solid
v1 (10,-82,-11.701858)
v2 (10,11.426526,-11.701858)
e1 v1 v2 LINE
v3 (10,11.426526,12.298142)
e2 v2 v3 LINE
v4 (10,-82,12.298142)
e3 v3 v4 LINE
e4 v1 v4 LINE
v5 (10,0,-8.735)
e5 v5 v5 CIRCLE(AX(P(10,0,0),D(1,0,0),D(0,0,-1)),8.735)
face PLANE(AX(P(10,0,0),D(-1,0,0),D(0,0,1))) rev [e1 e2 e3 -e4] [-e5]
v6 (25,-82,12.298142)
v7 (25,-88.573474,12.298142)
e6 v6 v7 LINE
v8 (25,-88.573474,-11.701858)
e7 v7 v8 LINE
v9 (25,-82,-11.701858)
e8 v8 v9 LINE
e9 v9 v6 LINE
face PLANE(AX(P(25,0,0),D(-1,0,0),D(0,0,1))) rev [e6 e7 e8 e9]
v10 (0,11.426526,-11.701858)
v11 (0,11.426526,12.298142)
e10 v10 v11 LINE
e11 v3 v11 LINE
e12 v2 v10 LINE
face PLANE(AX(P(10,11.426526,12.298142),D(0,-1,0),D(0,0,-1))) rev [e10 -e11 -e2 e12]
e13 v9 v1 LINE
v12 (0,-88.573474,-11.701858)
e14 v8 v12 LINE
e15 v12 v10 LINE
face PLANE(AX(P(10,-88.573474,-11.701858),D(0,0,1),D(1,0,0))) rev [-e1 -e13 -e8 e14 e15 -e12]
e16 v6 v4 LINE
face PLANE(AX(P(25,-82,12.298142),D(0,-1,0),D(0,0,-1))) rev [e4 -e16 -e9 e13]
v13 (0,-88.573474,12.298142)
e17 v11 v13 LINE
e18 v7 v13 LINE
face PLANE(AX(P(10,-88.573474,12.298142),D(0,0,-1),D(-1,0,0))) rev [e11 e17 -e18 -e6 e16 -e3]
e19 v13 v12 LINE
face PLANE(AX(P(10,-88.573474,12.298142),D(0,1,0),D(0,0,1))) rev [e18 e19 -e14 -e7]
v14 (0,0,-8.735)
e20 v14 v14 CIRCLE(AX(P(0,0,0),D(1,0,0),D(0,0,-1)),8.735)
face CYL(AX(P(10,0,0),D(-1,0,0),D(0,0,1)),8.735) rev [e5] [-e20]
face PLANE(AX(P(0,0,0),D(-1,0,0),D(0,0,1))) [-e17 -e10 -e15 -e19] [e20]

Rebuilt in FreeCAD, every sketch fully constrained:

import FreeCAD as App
import Part
import Sketcher
from FreeCAD import Vector


def add_polygon(sketch, points):
    """Adds a closed chain of lines whose ends are joined by coincident constraints."""
    first, n = sketch.GeometryCount, len(points)
    for a, b in zip(points, points[1:] + points[:1]):
        sketch.addGeometry(Part.LineSegment(App.Vector(*a, 0), App.Vector(*b, 0)), False)
    for i in range(n):
        sketch.addConstraint(Sketcher.Constraint("Coincident", first + i, 2, first + (i + 1) % n, 1))

doc = App.newDocument("Part")
body = doc.addObject("PartDesign::Body", "Body")

sketch1 = body.newObject("Sketcher::SketchObject", "Sketch")
sketch1.AttachmentSupport = (doc.getObject("YZ_Plane"), [""])
sketch1.MapMode = "FlatFace"
add_polygon(sketch1, [(11, 12), (-89, 12), (-89, -12), (11, -12)])
sketch1.addGeometry(Part.Circle(Vector(0, 0, 0), Vector(0, 0, 1), 9), False)
sketch1.addConstraint([
    Sketcher.Constraint("Horizontal", 0),
    Sketcher.Constraint("Vertical", 1),
    Sketcher.Constraint("Horizontal", 2),
    Sketcher.Constraint("Vertical", 3),
    Sketcher.Constraint("Coincident", 4, 3, -1, 1),
    Sketcher.Constraint("Diameter", 4, 17.47),
    Sketcher.Constraint("DistanceX", 0, 2, 0, 1, 100.0),
    Sketcher.Constraint("DistanceY", 1, 2, 1, 1, 24.0),
    Sketcher.Constraint("DistanceX", 0, 2, -1, 1, 88.573474),
    Sketcher.Constraint("DistanceY", -1, 1, 0, 2, 12.298142),
])
pad1 = body.newObject("PartDesign::Pad", "Pad")
pad1.Profile = sketch1
pad1.Length = 10

sketch2 = body.newObject("Sketcher::SketchObject", "Sketch001")
sketch2.AttachmentSupport = (doc.getObject("YZ_Plane"), [""])
sketch2.MapMode = "FlatFace"
sketch2.AttachmentOffset = App.Placement(Vector(0, 0, 10), App.Rotation())
add_polygon(sketch2, [(-82, 12), (-89, 12), (-89, -12), (-82, -12)])
sketch2.addConstraint([
    Sketcher.Constraint("Horizontal", 0),
    Sketcher.Constraint("Vertical", 1),
    Sketcher.Constraint("Horizontal", 2),
    Sketcher.Constraint("Vertical", 3),
    Sketcher.Constraint("DistanceY", 1, 2, 1, 1, 24.0),
    Sketcher.Constraint("DistanceX", 2, 2, -1, 1, 82.0),
    Sketcher.Constraint("DistanceX", 0, 2, 0, 1, 6.573474),
    Sketcher.Constraint("DistanceY", -1, 1, 0, 2, 12.298142),
])
pad2 = body.newObject("PartDesign::Pad", "Pad001")
pad2.Profile = sketch2
pad2.Length = 15

doc.recompute()
